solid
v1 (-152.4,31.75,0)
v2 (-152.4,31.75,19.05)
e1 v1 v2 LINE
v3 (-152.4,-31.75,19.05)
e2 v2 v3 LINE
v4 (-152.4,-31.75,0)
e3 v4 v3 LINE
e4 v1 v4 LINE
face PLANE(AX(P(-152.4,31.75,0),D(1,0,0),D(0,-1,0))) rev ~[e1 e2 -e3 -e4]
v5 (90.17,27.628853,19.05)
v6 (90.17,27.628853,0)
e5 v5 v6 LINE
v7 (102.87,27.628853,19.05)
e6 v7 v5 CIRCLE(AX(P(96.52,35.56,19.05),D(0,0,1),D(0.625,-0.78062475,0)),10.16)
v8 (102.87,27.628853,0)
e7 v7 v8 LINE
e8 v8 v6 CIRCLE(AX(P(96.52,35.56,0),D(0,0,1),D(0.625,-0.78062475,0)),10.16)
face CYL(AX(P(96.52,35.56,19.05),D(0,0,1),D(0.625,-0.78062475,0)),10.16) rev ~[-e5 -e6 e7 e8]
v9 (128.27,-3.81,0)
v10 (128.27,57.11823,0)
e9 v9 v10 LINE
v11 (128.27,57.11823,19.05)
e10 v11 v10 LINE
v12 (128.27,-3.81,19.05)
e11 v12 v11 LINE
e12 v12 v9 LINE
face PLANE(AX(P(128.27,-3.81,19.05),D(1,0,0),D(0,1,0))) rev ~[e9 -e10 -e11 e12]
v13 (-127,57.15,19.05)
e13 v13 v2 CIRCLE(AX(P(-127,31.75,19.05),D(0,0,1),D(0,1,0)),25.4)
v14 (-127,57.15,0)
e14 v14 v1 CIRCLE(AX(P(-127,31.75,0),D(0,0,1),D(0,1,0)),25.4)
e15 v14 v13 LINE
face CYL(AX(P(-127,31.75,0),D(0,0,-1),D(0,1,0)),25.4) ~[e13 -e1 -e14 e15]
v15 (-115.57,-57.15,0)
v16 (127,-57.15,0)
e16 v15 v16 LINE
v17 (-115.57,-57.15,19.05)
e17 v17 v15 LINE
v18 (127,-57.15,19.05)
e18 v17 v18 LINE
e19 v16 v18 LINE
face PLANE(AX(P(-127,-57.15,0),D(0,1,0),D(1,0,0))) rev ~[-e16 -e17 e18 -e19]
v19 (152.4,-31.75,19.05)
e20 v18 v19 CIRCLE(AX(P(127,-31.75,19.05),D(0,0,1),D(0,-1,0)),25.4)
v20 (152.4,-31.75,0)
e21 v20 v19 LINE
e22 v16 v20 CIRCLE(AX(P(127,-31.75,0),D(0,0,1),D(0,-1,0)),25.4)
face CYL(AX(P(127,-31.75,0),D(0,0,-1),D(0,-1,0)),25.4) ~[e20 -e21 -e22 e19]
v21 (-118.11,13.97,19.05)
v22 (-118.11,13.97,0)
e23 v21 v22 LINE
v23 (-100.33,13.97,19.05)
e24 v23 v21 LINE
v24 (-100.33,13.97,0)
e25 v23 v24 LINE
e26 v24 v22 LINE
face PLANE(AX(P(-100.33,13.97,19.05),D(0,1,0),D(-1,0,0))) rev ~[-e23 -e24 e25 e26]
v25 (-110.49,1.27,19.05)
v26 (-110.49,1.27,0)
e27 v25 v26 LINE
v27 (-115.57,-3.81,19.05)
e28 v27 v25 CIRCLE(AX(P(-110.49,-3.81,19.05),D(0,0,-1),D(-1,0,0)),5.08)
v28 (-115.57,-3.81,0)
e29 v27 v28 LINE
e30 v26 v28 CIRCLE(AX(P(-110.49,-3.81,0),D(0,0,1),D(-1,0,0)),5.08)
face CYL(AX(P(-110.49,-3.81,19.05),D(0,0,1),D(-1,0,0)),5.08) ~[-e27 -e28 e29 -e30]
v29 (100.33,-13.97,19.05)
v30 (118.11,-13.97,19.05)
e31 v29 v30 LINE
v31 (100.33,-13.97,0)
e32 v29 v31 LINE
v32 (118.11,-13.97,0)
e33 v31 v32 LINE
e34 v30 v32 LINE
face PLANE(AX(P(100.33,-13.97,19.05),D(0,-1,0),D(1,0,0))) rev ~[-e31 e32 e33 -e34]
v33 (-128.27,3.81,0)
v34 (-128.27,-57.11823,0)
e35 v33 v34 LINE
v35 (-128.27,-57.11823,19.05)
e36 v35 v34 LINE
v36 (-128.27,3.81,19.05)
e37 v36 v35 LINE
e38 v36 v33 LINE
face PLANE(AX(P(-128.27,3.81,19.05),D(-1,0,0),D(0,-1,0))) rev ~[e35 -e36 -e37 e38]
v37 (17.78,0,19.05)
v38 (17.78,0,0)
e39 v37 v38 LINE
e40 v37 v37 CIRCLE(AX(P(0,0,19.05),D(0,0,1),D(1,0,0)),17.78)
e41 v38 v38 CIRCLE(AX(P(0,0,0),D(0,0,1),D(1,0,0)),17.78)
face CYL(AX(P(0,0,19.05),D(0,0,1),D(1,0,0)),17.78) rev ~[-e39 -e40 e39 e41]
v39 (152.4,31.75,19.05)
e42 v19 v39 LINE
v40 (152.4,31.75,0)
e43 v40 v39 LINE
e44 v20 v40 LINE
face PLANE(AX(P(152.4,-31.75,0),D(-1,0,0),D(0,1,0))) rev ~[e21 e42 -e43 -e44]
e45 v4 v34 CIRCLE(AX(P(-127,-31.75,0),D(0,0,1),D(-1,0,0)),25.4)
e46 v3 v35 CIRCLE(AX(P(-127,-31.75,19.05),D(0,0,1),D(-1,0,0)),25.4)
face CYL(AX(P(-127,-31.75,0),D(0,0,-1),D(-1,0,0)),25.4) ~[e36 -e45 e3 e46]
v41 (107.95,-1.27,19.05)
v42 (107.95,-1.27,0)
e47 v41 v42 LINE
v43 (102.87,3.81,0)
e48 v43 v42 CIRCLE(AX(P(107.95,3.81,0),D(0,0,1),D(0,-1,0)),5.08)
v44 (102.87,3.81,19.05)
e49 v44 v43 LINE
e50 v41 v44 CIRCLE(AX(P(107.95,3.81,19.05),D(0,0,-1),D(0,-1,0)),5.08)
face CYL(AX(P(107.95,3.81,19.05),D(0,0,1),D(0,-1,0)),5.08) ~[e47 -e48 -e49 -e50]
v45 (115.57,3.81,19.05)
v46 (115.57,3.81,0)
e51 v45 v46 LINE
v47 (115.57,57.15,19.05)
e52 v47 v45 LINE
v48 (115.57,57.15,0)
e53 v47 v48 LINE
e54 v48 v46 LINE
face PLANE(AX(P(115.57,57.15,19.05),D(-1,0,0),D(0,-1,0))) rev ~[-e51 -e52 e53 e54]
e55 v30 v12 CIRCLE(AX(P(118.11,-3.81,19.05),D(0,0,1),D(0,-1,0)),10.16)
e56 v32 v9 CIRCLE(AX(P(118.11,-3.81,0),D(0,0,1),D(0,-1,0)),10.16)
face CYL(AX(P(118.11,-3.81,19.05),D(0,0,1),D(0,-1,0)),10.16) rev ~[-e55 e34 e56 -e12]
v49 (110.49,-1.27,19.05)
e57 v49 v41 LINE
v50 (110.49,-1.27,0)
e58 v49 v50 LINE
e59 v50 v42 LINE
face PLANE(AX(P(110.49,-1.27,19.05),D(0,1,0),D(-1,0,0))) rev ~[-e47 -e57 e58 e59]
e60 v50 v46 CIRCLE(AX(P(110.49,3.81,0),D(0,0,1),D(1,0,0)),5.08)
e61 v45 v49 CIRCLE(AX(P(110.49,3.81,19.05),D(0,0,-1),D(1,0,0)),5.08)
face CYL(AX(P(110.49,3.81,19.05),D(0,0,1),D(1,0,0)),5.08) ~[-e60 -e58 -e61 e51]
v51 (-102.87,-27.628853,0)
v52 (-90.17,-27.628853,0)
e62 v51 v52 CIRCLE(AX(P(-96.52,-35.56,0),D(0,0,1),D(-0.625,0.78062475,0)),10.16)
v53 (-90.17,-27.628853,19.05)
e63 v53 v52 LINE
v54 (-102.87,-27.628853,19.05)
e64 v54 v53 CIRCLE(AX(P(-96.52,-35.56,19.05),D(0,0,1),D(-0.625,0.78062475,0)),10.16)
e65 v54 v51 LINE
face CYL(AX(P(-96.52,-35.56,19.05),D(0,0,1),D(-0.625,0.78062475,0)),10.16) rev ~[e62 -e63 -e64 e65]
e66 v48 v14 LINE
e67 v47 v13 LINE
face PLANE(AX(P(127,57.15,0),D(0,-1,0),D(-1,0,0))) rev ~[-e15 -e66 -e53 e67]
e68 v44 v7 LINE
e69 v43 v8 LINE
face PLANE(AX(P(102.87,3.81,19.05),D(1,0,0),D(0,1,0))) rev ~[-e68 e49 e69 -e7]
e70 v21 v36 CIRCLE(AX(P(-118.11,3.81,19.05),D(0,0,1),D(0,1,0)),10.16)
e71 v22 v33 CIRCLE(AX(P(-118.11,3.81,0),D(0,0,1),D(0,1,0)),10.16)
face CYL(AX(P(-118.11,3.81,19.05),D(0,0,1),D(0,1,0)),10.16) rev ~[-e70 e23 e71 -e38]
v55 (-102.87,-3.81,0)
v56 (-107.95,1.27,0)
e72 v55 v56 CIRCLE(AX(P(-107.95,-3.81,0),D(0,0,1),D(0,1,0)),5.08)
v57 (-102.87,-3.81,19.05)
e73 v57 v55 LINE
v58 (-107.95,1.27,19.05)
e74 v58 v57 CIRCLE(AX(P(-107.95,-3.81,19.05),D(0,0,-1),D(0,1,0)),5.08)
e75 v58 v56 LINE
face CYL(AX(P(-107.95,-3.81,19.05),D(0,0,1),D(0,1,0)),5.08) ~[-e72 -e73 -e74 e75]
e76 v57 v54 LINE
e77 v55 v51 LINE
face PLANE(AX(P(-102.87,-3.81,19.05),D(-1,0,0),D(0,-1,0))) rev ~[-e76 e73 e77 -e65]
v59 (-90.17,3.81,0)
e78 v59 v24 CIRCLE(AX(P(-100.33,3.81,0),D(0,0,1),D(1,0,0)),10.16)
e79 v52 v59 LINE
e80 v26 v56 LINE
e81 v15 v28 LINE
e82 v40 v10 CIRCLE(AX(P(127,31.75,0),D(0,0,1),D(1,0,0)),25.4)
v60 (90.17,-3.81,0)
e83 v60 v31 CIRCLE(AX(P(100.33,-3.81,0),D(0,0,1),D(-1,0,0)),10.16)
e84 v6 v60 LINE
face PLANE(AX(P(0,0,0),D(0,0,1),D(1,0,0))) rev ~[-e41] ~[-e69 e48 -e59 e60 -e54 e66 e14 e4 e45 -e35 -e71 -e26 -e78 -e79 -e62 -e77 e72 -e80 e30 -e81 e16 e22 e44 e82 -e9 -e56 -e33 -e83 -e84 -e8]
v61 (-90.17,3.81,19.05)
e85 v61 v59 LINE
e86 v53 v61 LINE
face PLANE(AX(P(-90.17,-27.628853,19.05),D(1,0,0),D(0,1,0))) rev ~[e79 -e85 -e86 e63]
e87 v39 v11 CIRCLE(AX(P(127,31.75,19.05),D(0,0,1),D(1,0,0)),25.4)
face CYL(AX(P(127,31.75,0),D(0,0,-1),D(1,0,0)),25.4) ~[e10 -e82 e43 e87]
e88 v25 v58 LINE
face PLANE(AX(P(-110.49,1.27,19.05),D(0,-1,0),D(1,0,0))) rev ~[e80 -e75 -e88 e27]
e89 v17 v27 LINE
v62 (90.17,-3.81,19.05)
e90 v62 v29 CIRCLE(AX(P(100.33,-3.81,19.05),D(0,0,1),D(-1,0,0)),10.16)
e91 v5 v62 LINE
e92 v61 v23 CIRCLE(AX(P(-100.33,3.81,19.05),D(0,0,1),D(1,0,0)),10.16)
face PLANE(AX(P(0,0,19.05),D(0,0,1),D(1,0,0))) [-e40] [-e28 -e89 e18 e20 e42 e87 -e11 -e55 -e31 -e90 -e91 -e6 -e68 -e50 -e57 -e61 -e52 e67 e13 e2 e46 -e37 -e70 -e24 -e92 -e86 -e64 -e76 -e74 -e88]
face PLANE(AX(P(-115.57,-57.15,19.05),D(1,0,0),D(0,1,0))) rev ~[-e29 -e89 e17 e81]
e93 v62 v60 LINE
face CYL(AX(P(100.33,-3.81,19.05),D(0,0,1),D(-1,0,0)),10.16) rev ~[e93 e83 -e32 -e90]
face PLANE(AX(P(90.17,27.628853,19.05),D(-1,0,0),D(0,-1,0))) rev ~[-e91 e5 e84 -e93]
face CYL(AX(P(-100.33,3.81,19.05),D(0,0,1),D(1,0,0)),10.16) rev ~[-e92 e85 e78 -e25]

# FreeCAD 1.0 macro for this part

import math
import FreeCAD as App
import Part
import Sketcher
Q = App.Units.Quantity

doc = App.newDocument("Part")
body = doc.addObject("PartDesign::Body", "Body")

sketch1 = body.newObject("Sketcher::SketchObject", "Sketch")
sketch1.AttachmentSupport = (doc.getObject("XY_Plane"), [""])
sketch1.MapMode = "FlatFace"
sketch1.addGeometry([
    Part.ArcOfCircle(Part.Circle(App.Vector(127, 32, 0), App.Vector(0, 0, 1), 25), math.radians(0), math.radians(90)),
    Part.LineSegment(App.Vector(127, 57, 0), App.Vector(-127, 57, 0)),
    Part.ArcOfCircle(Part.Circle(App.Vector(-127, 32, 0), App.Vector(0, 0, 1), 25), math.radians(90), math.radians(180)),
    Part.LineSegment(App.Vector(-152, 32, 0), App.Vector(-152, -32, 0)),
    Part.ArcOfCircle(Part.Circle(App.Vector(-127, -32, 0), App.Vector(0, 0, 1), 25), math.radians(180), math.radians(270)),
    Part.LineSegment(App.Vector(-127, -57, 0), App.Vector(127, -57, 0)),
    Part.ArcOfCircle(Part.Circle(App.Vector(127, -32, 0), App.Vector(0, 0, 1), 25), math.radians(-90), math.radians(0)),
    Part.LineSegment(App.Vector(152, -32, 0), App.Vector(152, 32, 0)),
], False)
sketch1.addConstraint([
    Sketcher.Constraint("Tangent", 0, 2, 1, 1),
    Sketcher.Constraint("Tangent", 1, 2, 2, 1),
    Sketcher.Constraint("Tangent", 2, 2, 3, 1),
    Sketcher.Constraint("Tangent", 3, 2, 4, 1),
    Sketcher.Constraint("Tangent", 4, 2, 5, 1),
    Sketcher.Constraint("Tangent", 5, 2, 6, 1),
    Sketcher.Constraint("Tangent", 6, 2, 7, 1),
    Sketcher.Constraint("Tangent", 7, 2, 0, 1),
    Sketcher.Constraint("Horizontal", 1),
    Sketcher.Constraint("Vertical", 3),
    Sketcher.Constraint("Horizontal", 5),
    Sketcher.Constraint("Vertical", 7),
    Sketcher.Constraint("Equal", 0, 2),
    Sketcher.Constraint("Equal", 2, 4),
    Sketcher.Constraint("Equal", 4, 6),
    Sketcher.Constraint("Symmetric", 0, 3, 4, 3, -1, 1),
    Sketcher.Constraint("Radius", 0, Q("1 in")),
    Sketcher.Constraint("DistanceX", 1, 2, 1, 1, Q("10 in")),
    Sketcher.Constraint("DistanceY", 3, 2, 3, 1, Q("2.5 in")),
])
pad1 = body.newObject("PartDesign::Pad", "Pad")
pad1.Profile = sketch1
pad1.Length = Q("0.75 in")

sketch2 = body.newObject("Sketcher::SketchObject", "Sketch001")
sketch2.AttachmentSupport = (doc.getObject("XY_Plane"), [""])
sketch2.MapMode = "FlatFace"
sketch2.AttachmentOffset = App.Placement(App.Vector(0, 0, 0.75 * 25.4), App.Rotation())
sketch2.addGeometry(Part.Circle(App.Vector(0, 0, 0), App.Vector(0, 0, 1), 18), False)
sketch2.addConstraint([
    Sketcher.Constraint("Coincident", 0, 3, -1, 1),
    Sketcher.Constraint("Diameter", 0, Q("1.4 in")),
])
pocket1 = body.newObject("PartDesign::Pocket", "Pocket")
pocket1.Profile = sketch2
pocket1.Type = "ThroughAll"

sketch3 = body.newObject("Sketcher::SketchObject", "Sketch002")
sketch3.AttachmentSupport = (doc.getObject("XY_Plane"), [""])
sketch3.MapMode = "FlatFace"
sketch3.AttachmentOffset = App.Placement(App.Vector(0, 0, 0.75 * 25.4), App.Rotation())
sketch3.addGeometry([
    Part.LineSegment(App.Vector(128.3, -3.8, 0), App.Vector(128.3, 57.1, 0)),
    Part.LineSegment(App.Vector(128.3, 57.1, 0), App.Vector(115.6, 57.1, 0)),
    Part.LineSegment(App.Vector(115.6, 57.1, 0), App.Vector(115.6, 3.8, 0)),
    Part.ArcOfCircle(Part.Circle(App.Vector(110.5, 3.8, 0), App.Vector(0, 0, 1), 5.1), math.radians(-90), math.radians(0)),
    Part.LineSegment(App.Vector(110.5, -1.3, 0), App.Vector(108, -1.3, 0)),
    Part.ArcOfCircle(Part.Circle(App.Vector(108, 3.8, 0), App.Vector(0, 0, 1), 5.1), math.radians(180), math.radians(270)),
    Part.LineSegment(App.Vector(102.9, 3.8, 0), App.Vector(102.9, 27.6, 0)),
    Part.ArcOfCircle(Part.Circle(App.Vector(96.5, 35.6, 0), App.Vector(0, 0, 1), 10.2), math.radians(-51), math.radians(231)),
    Part.LineSegment(App.Vector(90.2, 27.6, 0), App.Vector(90.2, -3.8, 0)),
    Part.ArcOfCircle(Part.Circle(App.Vector(100.3, -3.8, 0), App.Vector(0, 0, 1), 10.2), math.radians(180), math.radians(270)),
    Part.LineSegment(App.Vector(100.3, -14, 0), App.Vector(118.1, -14, 0)),
    Part.ArcOfCircle(Part.Circle(App.Vector(118.1, -3.8, 0), App.Vector(0, 0, 1), 10.2), math.radians(-90), math.radians(0)),
    Part.LineSegment(App.Vector(-128.3, 3.8, 0), App.Vector(-128.3, -57.1, 0)),
    Part.ArcOfCircle(Part.Circle(App.Vector(-127, -31.8, 0), App.Vector(0, 0, 1), 25.4), math.radians(-92.87), math.radians(-90)),
    Part.LineSegment(App.Vector(-127, -57.1, 0), App.Vector(-115.6, -57.1, 0)),
    Part.LineSegment(App.Vector(-115.6, -57.1, 0), App.Vector(-115.6, -3.8, 0)),
    Part.ArcOfCircle(Part.Circle(App.Vector(-110.5, -3.8, 0), App.Vector(0, 0, 1), 5.1), math.radians(90), math.radians(180)),
    Part.LineSegment(App.Vector(-110.5, 1.3, 0), App.Vector(-108, 1.3, 0)),
    Part.ArcOfCircle(Part.Circle(App.Vector(-108, -3.8, 0), App.Vector(0, 0, 1), 5.1), math.radians(0), math.radians(90)),
    Part.LineSegment(App.Vector(-102.9, -3.8, 0), App.Vector(-102.9, -27.6, 0)),
    Part.ArcOfCircle(Part.Circle(App.Vector(-96.5, -35.6, 0), App.Vector(0, 0, 1), 10.2), math.radians(129), math.radians(411)),
    Part.LineSegment(App.Vector(-90.2, -27.6, 0), App.Vector(-90.2, 3.8, 0)),
    Part.ArcOfCircle(Part.Circle(App.Vector(-100.3, 3.8, 0), App.Vector(0, 0, 1), 10.2), math.radians(0), math.radians(90)),
    Part.LineSegment(App.Vector(-100.3, 14, 0), App.Vector(-118.1, 14, 0)),
    Part.ArcOfCircle(Part.Circle(App.Vector(-118.1, 3.8, 0), App.Vector(0, 0, 1), 10.2), math.radians(90), math.radians(180)),
], False)
sketch3.addConstraint([
    Sketcher.Constraint("Coincident", 0, 2, 1, 1),
    Sketcher.Constraint("Coincident", 1, 2, 2, 1),
    Sketcher.Constraint("Tangent", 2, 2, 3, 2),
    Sketcher.Constraint("Tangent", 3, 1, 4, 1),
    Sketcher.Constraint("Tangent", 4, 2, 5, 2),
    Sketcher.Constraint("Tangent", 5, 1, 6, 1),
    Sketcher.Constraint("Coincident", 6, 2, 7, 1),
    Sketcher.Constraint("Coincident", 7, 2, 8, 1),
    Sketcher.Constraint("Tangent", 8, 2, 9, 1),
    Sketcher.Constraint("Tangent", 9, 2, 10, 1),
    Sketcher.Constraint("Tangent", 10, 2, 11, 1),
    Sketcher.Constraint("Tangent", 11, 2, 0, 1),
    Sketcher.Constraint("Coincident", 12, 2, 13, 1),
    Sketcher.Constraint("Tangent", 13, 2, 14, 1),
    Sketcher.Constraint("Coincident", 14, 2, 15, 1),
    Sketcher.Constraint("Tangent", 15, 2, 16, 2),
    Sketcher.Constraint("Tangent", 16, 1, 17, 1),
    Sketcher.Constraint("Tangent", 17, 2, 18, 2),
    Sketcher.Constraint("Tangent", 18, 1, 19, 1),
    Sketcher.Constraint("Coincident", 19, 2, 20, 1),
    Sketcher.Constraint("Coincident", 20, 2, 21, 1),
    Sketcher.Constraint("Tangent", 21, 2, 22, 1),
    Sketcher.Constraint("Tangent", 22, 2, 23, 1),
    Sketcher.Constraint("Tangent", 23, 2, 24, 1),
    Sketcher.Constraint("Tangent", 24, 2, 12, 1),
    Sketcher.Constraint("Vertical", 0),
    Sketcher.Constraint("Horizontal", 1),
    Sketcher.Constraint("Vertical", 2),
    Sketcher.Constraint("Horizontal", 4),
    Sketcher.Constraint("Vertical", 6),
    Sketcher.Constraint("Vertical", 8),
    Sketcher.Constraint("Horizontal", 10),
    Sketcher.Constraint("Vertical", 12),
    Sketcher.Constraint("Horizontal", 14),
    Sketcher.Constraint("Vertical", 15),
    Sketcher.Constraint("Horizontal", 17),
    Sketcher.Constraint("Vertical", 19),
    Sketcher.Constraint("Vertical", 21),
    Sketcher.Constraint("Horizontal", 23),
    Sketcher.Constraint("Equal", 3, 5),
    Sketcher.Constraint("Equal", 7, 9),
    Sketcher.Constraint("Equal", 9, 11),
    Sketcher.Constraint("Equal", 5, 16),
    Sketcher.Constraint("Equal", 16, 18),
    Sketcher.Constraint("Equal", 11, 20),
    Sketcher.Constraint("Equal", 20, 22),
    Sketcher.Constraint("Equal", 22, 24),
    Sketcher.Constraint("Symmetric", 3, 3, 16, 3, -1, 1),
    Sketcher.Constraint("Symmetric", 7, 3, 20, 3, -1, 1),
    Sketcher.Constraint("Symmetric", 9, 3, 22, 3, -1, 1),
    Sketcher.Constraint("Horizontal", 11, 3, 16, 3),
    Sketcher.Constraint("Horizontal", 6, 2, 7, 2),
    Sketcher.Constraint("Horizontal", 19, 2, 20, 2),
    Sketcher.Constraint("Equal", 10, 23),
    Sketcher.Constraint("Equal", 2, 15),
    Sketcher.Constraint("Radius", 13, Q("1 in")),
    Sketcher.Constraint("Radius", 3, Q("0.2 in")),
    Sketcher.Constraint("Radius", 7, Q("0.4 in")),
    Sketcher.Constraint("DistanceX", 1, 2, 1, 1, Q("0.5 in")),
    Sketcher.Constraint("DistanceX", 4, 2, 4, 1, Q("0.1 in")),
    Sketcher.Constraint("DistanceX", 10, 1, 10, 2, Q("0.7 in")),
    Sketcher.Constraint("DistanceY", 0, 1, 0, 2, Q("2.4 in")),
    Sketcher.Constraint("DistanceY", 2, 2, 2, 1, Q("2.1 in")),
    Sketcher.Constraint("DistanceX", 13, 3, -1, 1, Q("5 in")),
    Sketcher.Constraint("DistanceX", 14, 1, 14, 2, Q("0.45 in")),
    Sketcher.Constraint("DistanceY", -1, 1, 7, 3, Q("1.4 in")),
])
pocket2 = body.newObject("PartDesign::Pocket", "Pocket001")
pocket2.Profile = sketch3
pocket2.Type = "ThroughAll"

doc.recompute()
